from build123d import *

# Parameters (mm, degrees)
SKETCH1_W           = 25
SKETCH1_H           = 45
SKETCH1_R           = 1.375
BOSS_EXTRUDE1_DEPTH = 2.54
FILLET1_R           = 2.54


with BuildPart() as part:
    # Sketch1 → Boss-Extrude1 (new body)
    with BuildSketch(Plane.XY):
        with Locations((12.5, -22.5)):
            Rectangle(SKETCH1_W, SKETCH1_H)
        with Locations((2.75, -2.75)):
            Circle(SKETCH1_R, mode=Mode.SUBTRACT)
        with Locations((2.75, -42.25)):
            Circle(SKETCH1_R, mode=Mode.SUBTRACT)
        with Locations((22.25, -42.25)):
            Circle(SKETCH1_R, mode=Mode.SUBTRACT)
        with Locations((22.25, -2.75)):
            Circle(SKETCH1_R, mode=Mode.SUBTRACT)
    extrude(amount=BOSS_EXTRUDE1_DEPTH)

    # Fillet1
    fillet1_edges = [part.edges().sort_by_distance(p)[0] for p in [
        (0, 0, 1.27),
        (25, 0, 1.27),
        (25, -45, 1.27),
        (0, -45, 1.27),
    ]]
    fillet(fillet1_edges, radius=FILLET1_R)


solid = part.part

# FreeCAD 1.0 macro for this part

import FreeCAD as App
import Part
import Sketcher
from FreeCAD import Vector


def edges_at(feature, points):
    """Names of the edges that pass closest to the given points."""
    edges = feature.Shape.Edges
    near = lambda p: min(range(len(edges)), key=lambda i: edges[i].distToShape(Part.Vertex(*p))[0])
    return sorted({f"Edge{near(p) + 1}" for p in points})


def add_polygon(sketch, points):
    """Adds a closed chain of lines whose ends are joined by coincident constraints."""
    first, n = sketch.GeometryCount, len(points)
    for a, b in zip(points, points[1:] + points[:1]):
        sketch.addGeometry(Part.LineSegment(App.Vector(*a, 0), App.Vector(*b, 0)), False)
    for i in range(n):
        sketch.addConstraint(Sketcher.Constraint("Coincident", first + i, 2, first + (i + 1) % n, 1))

doc = App.newDocument("Part")
body = doc.addObject("PartDesign::Body", "Body")

# Sketch on XY plane
sketch1 = body.newObject("Sketcher::SketchObject", "Sketch")
sketch1.AttachmentSupport = (doc.getObject("XY_Plane"), [""])
sketch1.MapMode = "FlatFace"
add_polygon(sketch1, [(0, 0), (0, -45), (25, -45), (25, 0)])  # lines 0-3
sketch1.addGeometry(Part.Circle(Vector(2.8, -42.2, 0), Vector(0, 0, 1), 1.4), False)  # 4
sketch1.addGeometry(Part.Circle(Vector(22.2, -42.2, 0), Vector(0, 0, 1), 1.4), False)  # 5
sketch1.addGeometry(Part.Circle(Vector(2.8, -2.8, 0), Vector(0, 0, 1), 1.4), False)  # 6
sketch1.addGeometry(Part.Circle(Vector(22.2, -2.8, 0), Vector(0, 0, 1), 1.4), False)  # 7
sketch1.addConstraint([
    Sketcher.Constraint("Vertical", 0),
    Sketcher.Constraint("Horizontal", 1),
    Sketcher.Constraint("Vertical", 2),
    Sketcher.Constraint("Horizontal", 3),
    Sketcher.Constraint("Coincident", 3, 2, -1, 1),
    Sketcher.Constraint("Equal", 4, 5),
    Sketcher.Constraint("Equal", 5, 6),
    Sketcher.Constraint("Equal", 6, 7),
    Sketcher.Constraint("Horizontal", 4, 3, 5, 3),
    Sketcher.Constraint("Horizontal", 6, 3, 7, 3),
    Sketcher.Constraint("Vertical", 4, 3, 6, 3),
    Sketcher.Constraint("Vertical", 5, 3, 7, 3),
    Sketcher.Constraint("Diameter", 4, 2.75),
    Sketcher.Constraint("DistanceX", 1, 1, 1, 2, 25.0),
    Sketcher.Constraint("DistanceY", 0, 2, 0, 1, 45.0),
    Sketcher.Constraint("DistanceX", 4, 3, 5, 3, 19.5),
    Sketcher.Constraint("DistanceY", 4, 3, 6, 3, 39.5),
    Sketcher.Constraint("DistanceX", -1, 1, 4, 3, 2.75),
    Sketcher.Constraint("DistanceY", 4, 3, -1, 1, 42.25),
])
pad1 = body.newObject("PartDesign::Pad", "Pad")
pad1.Profile = sketch1
pad1.Length = 2.54
doc.recompute()

fillet = body.newObject("PartDesign::Fillet", "Fillet")
fillet.Base = (pad1, edges_at(pad1, [
    (0, 0, 1.27),
    (25, 0, 1.27),
    (25, -45, 1.27),
    (0, -45, 1.27),
]))
fillet.Radius = 2.54

doc.recompute()
